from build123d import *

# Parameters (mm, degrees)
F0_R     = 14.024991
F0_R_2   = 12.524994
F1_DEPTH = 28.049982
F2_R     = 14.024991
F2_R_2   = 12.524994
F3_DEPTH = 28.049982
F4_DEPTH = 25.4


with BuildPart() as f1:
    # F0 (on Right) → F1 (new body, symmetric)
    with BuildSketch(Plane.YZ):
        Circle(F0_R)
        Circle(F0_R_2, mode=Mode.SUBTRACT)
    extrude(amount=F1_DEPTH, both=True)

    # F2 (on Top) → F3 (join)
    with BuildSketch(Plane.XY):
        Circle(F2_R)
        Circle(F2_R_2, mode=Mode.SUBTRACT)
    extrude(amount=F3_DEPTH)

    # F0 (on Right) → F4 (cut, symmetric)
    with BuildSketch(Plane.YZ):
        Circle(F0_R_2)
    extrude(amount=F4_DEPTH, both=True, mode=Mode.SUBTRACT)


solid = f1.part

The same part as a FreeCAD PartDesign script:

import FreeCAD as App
import Part
import Sketcher

doc = App.newDocument("Part")
params = doc.addObject("Spreadsheet::Sheet", "Params")
for row, (alias, value) in enumerate([
    ("pad1_length", "56.099964 mm"),
    ("pad2_length", "28.049982 mm"),
    ("pocket1_length", "2 in"),
], start=1):
    params.set(f"A{row}", alias)
    params.set(f"B{row}", "=" + value)
    params.setAlias(f"B{row}", alias)

body = doc.addObject("PartDesign::Body", "Body")

# Sketch on YZ plane
sketch1 = body.newObject("Sketcher::SketchObject", "Sketch")
sketch1.AttachmentSupport = (doc.getObject("YZ_Plane"), [""])
sketch1.MapMode = "FlatFace"
sketch1.addGeometry(Part.Circle(App.Vector(0, 0, 0), App.Vector(0, 0, 1), 14), False)
sketch1.addGeometry(Part.Circle(App.Vector(0, 0, 0), App.Vector(0, 0, 1), 13), False)
sketch1.addConstraint(Sketcher.Constraint("Coincident", 0, 3, -1, 1))
sketch1.addConstraint(Sketcher.Constraint("Coincident", 1, 3, -1, 1))
sketch1.addConstraint(Sketcher.Constraint("Diameter", 0, 28.049982))
sketch1.addConstraint(Sketcher.Constraint("Diameter", 1, 25.049988))
pad1 = body.newObject("PartDesign::Pad", "Pad")
pad1.Profile = sketch1
pad1.setExpression("Length", "Params.pad1_length")
pad1.Midplane = True

# Sketch on XY plane
sketch2 = body.newObject("Sketcher::SketchObject", "Sketch001")
sketch2.AttachmentSupport = (doc.getObject("XY_Plane"), [""])
sketch2.MapMode = "FlatFace"
sketch2.addGeometry(Part.Circle(App.Vector(0, 0, 0), App.Vector(0, 0, 1), 14), False)
sketch2.addGeometry(Part.Circle(App.Vector(0, 0, 0), App.Vector(0, 0, 1), 13), False)
sketch2.addConstraint(Sketcher.Constraint("Coincident", 0, 3, -1, 1))
sketch2.addConstraint(Sketcher.Constraint("Coincident", 1, 3, -1, 1))
sketch2.addConstraint(Sketcher.Constraint("Diameter", 0, 28.049982))
sketch2.addConstraint(Sketcher.Constraint("Diameter", 1, 25.049988))
pad2 = body.newObject("PartDesign::Pad", "Pad001")
pad2.Profile = sketch2
pad2.setExpression("Length", "Params.pad2_length")

# Sketch on YZ plane
sketch3 = body.newObject("Sketcher::SketchObject", "Sketch002")
sketch3.AttachmentSupport = (doc.getObject("YZ_Plane"), [""])
sketch3.MapMode = "FlatFace"
sketch3.addGeometry(Part.Circle(App.Vector(0, 0, 0), App.Vector(0, 0, 1), 13), False)
sketch3.addConstraint(Sketcher.Constraint("Coincident", 0, 3, -1, 1))
sketch3.addConstraint(Sketcher.Constraint("Diameter", 0, 25.049988))
pocket1 = body.newObject("PartDesign::Pocket", "Pocket")
pocket1.Profile = sketch3
pocket1.setExpression("Length", "Params.pocket1_length")
pocket1.Midplane = True

doc.recompute()
